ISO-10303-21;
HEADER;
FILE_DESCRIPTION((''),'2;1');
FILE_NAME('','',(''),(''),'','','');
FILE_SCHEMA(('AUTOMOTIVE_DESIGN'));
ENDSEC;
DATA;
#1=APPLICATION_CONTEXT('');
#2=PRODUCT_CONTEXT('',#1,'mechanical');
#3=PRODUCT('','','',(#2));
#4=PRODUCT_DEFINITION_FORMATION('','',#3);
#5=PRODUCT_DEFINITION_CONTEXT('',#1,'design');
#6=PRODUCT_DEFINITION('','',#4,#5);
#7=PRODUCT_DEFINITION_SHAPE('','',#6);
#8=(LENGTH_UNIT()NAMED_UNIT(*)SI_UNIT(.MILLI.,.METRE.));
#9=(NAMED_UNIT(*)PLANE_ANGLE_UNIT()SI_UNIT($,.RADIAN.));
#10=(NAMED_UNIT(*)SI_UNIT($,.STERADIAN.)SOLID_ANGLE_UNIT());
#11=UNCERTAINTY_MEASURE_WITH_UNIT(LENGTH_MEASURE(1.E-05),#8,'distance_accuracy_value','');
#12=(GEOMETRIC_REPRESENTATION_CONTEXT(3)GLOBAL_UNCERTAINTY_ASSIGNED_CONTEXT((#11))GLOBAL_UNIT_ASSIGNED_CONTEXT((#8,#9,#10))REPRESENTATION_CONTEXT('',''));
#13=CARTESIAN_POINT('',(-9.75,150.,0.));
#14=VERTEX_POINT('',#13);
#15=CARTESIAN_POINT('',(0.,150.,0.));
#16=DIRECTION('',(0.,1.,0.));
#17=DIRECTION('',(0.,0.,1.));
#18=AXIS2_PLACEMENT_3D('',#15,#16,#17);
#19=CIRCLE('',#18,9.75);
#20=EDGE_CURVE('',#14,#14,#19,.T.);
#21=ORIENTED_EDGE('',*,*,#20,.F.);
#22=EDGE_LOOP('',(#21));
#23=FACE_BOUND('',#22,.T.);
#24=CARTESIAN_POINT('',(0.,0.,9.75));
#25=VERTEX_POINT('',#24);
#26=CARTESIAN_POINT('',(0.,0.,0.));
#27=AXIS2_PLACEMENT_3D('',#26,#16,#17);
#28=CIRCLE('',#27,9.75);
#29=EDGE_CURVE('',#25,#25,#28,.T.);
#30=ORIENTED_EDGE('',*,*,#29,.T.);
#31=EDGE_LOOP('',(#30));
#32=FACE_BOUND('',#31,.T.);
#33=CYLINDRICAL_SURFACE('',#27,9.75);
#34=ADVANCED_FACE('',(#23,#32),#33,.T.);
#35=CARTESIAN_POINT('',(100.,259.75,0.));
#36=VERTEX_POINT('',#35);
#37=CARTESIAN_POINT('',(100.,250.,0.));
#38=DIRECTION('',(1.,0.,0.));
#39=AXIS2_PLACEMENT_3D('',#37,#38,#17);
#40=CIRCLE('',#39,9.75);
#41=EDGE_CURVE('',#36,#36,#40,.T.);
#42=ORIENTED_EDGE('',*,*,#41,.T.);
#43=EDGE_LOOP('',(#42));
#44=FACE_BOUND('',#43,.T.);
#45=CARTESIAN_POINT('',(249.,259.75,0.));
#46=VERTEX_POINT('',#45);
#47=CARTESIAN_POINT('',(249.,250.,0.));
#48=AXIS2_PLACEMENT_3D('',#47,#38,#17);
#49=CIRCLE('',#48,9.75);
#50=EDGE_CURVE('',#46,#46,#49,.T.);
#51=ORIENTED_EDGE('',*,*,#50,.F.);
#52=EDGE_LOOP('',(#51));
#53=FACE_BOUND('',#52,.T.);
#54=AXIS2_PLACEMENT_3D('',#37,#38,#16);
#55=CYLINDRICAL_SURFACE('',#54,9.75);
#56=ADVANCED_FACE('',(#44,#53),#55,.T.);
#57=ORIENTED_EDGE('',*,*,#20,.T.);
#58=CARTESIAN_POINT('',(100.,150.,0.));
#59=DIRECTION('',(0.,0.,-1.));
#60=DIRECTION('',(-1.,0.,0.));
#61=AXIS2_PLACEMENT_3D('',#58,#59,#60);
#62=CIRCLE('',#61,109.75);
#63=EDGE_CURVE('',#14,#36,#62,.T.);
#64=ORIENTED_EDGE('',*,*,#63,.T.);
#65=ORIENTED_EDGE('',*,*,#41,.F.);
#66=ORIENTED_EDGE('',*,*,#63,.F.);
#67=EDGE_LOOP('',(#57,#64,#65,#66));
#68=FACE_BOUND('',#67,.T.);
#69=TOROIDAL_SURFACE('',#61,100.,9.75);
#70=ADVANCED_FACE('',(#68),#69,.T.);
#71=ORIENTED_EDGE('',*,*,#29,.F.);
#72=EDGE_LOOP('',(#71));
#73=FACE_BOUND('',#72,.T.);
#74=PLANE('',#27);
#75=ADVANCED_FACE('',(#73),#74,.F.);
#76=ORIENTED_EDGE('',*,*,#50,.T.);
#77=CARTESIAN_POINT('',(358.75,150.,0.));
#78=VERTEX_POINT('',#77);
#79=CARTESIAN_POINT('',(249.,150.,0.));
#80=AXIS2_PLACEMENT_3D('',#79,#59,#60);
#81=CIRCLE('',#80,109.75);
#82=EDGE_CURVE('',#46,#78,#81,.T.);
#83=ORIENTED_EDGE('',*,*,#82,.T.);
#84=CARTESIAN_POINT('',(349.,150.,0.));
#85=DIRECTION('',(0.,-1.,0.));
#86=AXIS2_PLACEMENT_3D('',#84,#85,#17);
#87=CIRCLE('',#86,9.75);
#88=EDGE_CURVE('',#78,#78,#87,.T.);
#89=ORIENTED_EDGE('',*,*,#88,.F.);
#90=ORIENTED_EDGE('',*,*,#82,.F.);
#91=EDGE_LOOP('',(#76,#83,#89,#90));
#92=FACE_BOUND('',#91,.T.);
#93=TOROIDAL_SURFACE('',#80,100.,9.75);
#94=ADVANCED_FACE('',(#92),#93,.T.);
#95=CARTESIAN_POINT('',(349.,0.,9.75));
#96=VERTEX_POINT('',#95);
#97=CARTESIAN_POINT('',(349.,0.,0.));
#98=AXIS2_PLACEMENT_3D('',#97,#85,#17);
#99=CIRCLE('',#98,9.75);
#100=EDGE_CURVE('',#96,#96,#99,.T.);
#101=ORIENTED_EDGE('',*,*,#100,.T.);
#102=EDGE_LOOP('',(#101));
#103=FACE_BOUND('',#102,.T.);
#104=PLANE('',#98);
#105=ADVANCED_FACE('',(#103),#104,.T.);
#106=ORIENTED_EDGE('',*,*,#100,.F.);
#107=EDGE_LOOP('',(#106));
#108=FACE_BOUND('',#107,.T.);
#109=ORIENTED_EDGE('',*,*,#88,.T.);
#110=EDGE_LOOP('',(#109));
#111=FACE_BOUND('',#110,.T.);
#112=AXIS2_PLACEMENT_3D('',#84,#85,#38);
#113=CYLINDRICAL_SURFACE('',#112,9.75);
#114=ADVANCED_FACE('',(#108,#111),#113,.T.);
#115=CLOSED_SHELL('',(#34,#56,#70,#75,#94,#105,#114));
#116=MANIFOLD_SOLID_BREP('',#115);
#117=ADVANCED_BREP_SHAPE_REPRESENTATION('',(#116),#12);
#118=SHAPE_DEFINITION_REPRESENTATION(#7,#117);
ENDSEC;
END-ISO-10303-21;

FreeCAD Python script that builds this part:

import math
import FreeCAD as App
import Part
import Sketcher
from FreeCAD import Vector

doc = App.newDocument("Part")
body = doc.addObject("PartDesign::Body", "Body")

sketch1 = body.newObject("Sketcher::SketchObject", "Sketch")
sketch1.AttachmentSupport = (doc.getObject("XZ_Plane"), [""])
sketch1.MapMode = "FlatFace"
sketch1.addGeometry(Part.Circle(Vector(0, 0, 0), Vector(0, 0, 1), 10), False)
sketch1.addConstraint([
    Sketcher.Constraint("Coincident", 0, 3, -1, 1),
    Sketcher.Constraint("Diameter", 0, 19.5),
])

sketch2 = body.newObject("Sketcher::SketchObject", "Sketch001")
sketch2.AttachmentSupport = (doc.getObject("XY_Plane"), [""])
sketch2.MapMode = "FlatFace"
sketch2.addGeometry([
    Part.LineSegment(Vector(0, 0, 0), Vector(0, 150, 0)),
    Part.ArcOfCircle(Part.Circle(Vector(100, 150, 0), Vector(0, 0, 1), 100), math.radians(90), math.radians(180)),
    Part.LineSegment(Vector(100, 250, 0), Vector(249, 250, 0)),
    Part.ArcOfCircle(Part.Circle(Vector(249, 150, 0), Vector(0, 0, 1), 100), math.radians(0), math.radians(90)),
    Part.LineSegment(Vector(349, 150, 0), Vector(349, 0, 0)),
], False)
sketch2.addConstraint([
    Sketcher.Constraint("Tangent", 0, 2, 1, 2),
    Sketcher.Constraint("Tangent", 1, 1, 2, 1),
    Sketcher.Constraint("Tangent", 2, 2, 3, 2),
    Sketcher.Constraint("Tangent", 3, 1, 4, 1),
    Sketcher.Constraint("Vertical", 0),
    Sketcher.Constraint("Horizontal", 2),
    Sketcher.Constraint("Vertical", 4),
    Sketcher.Constraint("Coincident", 0, 1, -1, 1),
    Sketcher.Constraint("Equal", 1, 3),
    Sketcher.Constraint("PointOnObject", 4, 2, -1),
    Sketcher.Constraint("Radius", 1, 100.0),
    Sketcher.Constraint("DistanceX", 2, 1, 2, 2, 149.0),
    Sketcher.Constraint("DistanceY", 0, 1, 0, 2, 150.0),
])
doc.recompute()

additivepipe = body.newObject("PartDesign::AdditivePipe", "AdditivePipe")
additivepipe.Profile = sketch1
additivepipe.Spine = (sketch2, ["Edge1", "Edge2", "Edge3", "Edge4", "Edge5"])

doc.recompute()
